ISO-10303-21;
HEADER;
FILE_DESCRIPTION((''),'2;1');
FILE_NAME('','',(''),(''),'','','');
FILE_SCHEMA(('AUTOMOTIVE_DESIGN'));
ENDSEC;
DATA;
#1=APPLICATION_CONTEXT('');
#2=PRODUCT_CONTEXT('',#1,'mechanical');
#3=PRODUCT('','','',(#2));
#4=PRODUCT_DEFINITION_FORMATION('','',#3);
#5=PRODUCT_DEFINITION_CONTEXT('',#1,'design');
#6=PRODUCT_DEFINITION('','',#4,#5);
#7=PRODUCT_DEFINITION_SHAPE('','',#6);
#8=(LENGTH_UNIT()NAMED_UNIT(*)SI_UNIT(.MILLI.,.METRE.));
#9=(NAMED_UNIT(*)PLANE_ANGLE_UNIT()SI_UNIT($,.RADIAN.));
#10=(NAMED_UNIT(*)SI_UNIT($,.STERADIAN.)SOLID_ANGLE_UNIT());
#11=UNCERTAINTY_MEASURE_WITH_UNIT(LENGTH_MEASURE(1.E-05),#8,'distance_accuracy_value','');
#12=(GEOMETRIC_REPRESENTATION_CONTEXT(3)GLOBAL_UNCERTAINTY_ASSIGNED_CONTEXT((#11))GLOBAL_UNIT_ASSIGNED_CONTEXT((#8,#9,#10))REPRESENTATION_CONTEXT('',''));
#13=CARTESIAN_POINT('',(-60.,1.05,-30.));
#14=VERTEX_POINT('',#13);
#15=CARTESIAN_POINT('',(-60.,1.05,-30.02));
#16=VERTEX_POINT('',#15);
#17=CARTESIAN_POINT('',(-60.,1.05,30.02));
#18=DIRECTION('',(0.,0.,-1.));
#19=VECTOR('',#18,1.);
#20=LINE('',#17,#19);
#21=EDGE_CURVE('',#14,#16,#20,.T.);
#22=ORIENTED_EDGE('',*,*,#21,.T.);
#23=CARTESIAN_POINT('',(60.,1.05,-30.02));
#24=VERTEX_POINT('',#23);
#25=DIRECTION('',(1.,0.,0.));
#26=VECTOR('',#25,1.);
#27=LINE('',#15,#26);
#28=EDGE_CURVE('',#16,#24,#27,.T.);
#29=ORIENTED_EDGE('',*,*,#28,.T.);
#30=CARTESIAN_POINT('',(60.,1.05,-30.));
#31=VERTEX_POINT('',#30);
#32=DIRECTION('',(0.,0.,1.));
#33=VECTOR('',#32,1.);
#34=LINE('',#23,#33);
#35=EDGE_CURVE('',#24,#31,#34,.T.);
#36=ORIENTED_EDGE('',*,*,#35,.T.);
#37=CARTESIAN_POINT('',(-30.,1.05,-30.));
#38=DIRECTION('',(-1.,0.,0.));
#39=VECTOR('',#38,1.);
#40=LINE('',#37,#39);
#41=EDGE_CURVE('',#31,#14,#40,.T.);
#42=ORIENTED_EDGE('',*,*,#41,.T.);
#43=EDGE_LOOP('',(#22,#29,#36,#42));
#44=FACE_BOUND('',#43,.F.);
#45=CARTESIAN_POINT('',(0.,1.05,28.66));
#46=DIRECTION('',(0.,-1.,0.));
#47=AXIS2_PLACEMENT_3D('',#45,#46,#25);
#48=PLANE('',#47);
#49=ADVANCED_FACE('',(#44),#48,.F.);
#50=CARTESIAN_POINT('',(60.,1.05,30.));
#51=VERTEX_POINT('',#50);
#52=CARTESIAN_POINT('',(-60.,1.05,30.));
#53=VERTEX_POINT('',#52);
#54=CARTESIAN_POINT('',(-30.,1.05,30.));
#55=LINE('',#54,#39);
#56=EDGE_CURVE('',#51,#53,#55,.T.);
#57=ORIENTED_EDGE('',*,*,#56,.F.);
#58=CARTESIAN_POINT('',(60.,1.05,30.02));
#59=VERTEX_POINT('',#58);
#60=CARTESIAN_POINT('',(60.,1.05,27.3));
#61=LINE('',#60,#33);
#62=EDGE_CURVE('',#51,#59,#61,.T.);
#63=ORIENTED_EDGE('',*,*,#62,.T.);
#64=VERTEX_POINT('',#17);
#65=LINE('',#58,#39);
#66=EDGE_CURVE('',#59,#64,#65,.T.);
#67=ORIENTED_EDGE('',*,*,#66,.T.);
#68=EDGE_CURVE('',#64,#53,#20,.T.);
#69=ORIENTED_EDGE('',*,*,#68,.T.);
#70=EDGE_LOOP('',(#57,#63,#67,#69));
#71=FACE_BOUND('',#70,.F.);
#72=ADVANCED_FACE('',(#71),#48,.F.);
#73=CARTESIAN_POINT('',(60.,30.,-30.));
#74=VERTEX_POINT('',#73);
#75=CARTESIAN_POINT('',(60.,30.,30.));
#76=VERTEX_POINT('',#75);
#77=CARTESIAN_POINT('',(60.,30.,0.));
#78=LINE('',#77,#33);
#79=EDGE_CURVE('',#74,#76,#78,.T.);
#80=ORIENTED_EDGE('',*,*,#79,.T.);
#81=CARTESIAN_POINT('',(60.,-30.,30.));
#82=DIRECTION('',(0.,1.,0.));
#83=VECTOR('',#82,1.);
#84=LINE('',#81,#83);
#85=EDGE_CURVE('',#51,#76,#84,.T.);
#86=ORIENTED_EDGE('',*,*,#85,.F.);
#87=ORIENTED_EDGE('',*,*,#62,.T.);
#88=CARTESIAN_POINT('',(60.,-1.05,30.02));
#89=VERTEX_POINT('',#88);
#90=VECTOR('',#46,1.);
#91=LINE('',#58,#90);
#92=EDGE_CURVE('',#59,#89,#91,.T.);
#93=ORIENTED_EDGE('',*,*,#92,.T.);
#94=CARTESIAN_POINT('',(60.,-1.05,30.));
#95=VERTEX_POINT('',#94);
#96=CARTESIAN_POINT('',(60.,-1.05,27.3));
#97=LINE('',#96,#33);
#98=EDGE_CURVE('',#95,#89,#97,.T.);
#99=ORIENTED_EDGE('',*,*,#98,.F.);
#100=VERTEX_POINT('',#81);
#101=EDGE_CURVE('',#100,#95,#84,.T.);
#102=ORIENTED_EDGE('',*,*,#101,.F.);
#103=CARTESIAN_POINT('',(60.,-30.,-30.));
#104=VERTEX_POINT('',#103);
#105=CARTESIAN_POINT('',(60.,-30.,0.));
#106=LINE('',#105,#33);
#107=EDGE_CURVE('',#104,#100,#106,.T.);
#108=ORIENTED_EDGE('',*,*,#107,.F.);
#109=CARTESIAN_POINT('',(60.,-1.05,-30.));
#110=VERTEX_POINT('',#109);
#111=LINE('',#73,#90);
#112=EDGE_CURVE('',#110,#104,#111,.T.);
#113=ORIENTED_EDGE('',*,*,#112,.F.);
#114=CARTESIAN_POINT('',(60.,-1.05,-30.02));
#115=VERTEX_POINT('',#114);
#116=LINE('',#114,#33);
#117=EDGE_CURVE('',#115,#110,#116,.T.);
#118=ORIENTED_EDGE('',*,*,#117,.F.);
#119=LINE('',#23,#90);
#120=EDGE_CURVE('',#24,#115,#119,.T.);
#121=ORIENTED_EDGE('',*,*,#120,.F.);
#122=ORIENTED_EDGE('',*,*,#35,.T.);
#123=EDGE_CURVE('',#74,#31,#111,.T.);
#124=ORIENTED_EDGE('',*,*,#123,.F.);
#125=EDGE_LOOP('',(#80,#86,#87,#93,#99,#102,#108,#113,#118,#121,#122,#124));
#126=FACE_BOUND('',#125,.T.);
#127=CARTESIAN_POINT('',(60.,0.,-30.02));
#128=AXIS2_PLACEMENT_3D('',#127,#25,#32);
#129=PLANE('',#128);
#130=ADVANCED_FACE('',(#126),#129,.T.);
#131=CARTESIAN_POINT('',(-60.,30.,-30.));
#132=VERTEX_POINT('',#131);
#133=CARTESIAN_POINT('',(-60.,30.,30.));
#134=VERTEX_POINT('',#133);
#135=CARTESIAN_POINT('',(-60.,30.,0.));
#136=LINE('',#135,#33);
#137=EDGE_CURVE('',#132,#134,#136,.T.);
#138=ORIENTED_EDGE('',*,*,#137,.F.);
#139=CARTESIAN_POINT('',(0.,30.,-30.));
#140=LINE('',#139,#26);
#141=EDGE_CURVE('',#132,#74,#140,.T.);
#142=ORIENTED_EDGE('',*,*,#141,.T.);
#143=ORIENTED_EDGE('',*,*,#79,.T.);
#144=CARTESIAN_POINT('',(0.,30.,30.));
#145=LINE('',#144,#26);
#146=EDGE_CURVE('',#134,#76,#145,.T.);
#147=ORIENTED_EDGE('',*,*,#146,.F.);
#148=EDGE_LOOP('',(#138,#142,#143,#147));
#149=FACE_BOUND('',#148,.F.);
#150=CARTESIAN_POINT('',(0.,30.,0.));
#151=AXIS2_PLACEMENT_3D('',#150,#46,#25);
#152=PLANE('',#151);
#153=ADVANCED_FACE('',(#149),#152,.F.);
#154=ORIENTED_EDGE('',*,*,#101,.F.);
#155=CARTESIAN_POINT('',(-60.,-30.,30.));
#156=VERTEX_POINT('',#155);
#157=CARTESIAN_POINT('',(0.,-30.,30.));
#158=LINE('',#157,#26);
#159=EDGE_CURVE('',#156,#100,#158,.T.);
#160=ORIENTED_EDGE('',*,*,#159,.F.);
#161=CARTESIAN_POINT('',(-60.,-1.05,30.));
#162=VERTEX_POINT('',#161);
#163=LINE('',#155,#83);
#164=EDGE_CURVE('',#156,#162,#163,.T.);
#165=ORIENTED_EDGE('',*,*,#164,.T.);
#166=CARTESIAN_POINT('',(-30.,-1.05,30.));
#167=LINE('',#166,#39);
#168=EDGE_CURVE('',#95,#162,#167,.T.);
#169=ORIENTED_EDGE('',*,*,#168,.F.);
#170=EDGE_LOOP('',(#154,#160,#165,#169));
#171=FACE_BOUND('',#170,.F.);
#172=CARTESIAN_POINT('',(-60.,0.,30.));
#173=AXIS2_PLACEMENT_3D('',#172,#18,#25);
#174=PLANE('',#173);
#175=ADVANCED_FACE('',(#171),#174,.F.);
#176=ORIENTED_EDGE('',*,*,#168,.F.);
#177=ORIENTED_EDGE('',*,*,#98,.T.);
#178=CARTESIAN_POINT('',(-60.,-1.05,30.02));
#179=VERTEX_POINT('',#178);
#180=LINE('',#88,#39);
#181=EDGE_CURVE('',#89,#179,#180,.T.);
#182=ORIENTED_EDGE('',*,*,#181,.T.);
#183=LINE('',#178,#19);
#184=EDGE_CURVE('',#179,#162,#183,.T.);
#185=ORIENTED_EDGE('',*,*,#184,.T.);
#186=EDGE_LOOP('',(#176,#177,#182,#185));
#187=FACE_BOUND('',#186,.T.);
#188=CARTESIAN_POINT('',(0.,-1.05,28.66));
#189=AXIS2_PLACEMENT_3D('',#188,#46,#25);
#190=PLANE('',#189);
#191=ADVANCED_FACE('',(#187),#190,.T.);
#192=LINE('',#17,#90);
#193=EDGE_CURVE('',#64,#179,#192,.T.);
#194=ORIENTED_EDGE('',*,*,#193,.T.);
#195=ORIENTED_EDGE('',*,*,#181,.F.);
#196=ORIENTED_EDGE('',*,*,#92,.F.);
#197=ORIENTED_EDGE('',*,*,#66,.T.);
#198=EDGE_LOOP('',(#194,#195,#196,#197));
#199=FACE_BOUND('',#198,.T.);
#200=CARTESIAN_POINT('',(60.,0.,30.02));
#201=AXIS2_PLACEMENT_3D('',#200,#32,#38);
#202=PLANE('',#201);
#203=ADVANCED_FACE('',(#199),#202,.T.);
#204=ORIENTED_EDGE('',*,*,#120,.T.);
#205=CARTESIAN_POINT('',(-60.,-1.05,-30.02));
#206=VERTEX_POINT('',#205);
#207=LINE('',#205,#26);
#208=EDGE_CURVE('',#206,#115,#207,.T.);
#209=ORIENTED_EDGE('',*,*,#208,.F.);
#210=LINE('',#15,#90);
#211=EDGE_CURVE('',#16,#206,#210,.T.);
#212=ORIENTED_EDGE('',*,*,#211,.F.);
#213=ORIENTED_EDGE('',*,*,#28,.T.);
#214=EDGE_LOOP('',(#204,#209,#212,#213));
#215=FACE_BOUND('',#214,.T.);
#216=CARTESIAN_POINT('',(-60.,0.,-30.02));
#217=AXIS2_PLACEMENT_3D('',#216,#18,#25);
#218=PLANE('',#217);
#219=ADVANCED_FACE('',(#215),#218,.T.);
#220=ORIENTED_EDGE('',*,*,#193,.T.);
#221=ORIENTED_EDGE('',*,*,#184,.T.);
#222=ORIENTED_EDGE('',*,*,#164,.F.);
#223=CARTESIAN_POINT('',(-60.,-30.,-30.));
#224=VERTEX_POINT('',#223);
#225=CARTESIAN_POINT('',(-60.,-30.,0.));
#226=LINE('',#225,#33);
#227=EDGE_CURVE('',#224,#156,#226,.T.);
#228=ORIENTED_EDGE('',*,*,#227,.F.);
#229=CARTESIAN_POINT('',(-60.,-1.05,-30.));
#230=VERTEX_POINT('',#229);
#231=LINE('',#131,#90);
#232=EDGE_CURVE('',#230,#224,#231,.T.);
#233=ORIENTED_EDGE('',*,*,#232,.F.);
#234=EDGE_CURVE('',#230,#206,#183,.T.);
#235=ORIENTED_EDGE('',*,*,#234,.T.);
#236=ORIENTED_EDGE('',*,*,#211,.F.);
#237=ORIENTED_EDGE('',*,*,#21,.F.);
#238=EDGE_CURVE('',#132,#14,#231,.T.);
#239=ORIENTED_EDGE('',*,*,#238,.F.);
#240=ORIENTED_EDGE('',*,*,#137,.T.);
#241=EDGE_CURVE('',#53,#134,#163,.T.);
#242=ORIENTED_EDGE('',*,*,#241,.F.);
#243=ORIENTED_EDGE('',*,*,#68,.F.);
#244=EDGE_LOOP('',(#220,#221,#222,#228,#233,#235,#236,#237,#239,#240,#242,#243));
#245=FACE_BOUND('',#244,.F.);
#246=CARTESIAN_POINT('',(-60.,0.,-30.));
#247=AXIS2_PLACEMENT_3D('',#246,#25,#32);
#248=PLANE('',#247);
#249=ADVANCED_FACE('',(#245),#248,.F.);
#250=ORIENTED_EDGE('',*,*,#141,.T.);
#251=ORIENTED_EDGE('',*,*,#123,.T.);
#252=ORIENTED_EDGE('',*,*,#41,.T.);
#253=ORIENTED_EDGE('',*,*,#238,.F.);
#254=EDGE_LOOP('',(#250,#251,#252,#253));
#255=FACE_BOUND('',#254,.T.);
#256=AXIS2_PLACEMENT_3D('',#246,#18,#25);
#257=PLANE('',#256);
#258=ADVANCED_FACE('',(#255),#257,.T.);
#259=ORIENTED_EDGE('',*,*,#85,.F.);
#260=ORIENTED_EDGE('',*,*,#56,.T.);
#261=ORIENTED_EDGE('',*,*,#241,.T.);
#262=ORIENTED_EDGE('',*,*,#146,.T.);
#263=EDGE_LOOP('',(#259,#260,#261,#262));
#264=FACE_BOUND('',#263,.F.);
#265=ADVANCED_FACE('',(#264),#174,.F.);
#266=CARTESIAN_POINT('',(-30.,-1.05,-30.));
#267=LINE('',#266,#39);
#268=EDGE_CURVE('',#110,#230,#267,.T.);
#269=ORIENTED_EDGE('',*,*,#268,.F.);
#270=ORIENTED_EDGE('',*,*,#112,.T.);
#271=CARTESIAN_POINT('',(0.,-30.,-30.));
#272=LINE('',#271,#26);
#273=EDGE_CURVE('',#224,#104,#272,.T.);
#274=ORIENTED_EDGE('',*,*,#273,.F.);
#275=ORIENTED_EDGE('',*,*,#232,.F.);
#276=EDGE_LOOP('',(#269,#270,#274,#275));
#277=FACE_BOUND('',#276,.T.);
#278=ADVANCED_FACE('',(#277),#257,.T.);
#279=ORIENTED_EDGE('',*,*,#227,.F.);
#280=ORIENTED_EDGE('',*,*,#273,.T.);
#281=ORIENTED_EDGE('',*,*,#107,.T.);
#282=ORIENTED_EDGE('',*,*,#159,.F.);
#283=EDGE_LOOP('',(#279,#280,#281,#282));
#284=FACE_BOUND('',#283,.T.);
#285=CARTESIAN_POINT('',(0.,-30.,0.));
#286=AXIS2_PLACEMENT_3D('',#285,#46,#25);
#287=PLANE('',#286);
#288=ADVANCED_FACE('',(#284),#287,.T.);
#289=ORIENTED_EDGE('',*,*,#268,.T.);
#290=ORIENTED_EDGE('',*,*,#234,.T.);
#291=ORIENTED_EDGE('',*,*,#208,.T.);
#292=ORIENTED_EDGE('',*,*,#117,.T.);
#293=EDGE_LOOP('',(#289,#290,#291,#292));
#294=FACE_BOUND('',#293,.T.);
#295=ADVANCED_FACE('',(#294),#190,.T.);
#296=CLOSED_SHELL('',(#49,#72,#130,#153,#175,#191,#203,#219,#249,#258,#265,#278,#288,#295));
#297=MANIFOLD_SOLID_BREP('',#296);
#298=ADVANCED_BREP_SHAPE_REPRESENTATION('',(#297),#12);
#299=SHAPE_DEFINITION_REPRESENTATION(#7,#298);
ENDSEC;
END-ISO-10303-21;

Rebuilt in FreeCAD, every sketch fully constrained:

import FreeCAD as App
import Part
import Sketcher
Q = App.Units.Quantity

doc = App.newDocument("Part")
body = doc.addObject("PartDesign::Body", "Body")

# Sketch on XZ plane
sketch1 = body.newObject("Sketcher::SketchObject", "Sketch")
sketch1.AttachmentSupport = (doc.getObject("XZ_Plane"), [""])
sketch1.MapMode = "FlatFace"
sketch1.addGeometry([
    Part.LineSegment(App.Vector(-60, 30, 0), App.Vector(-60, -30, 0)),
    Part.LineSegment(App.Vector(-60, -30, 0), App.Vector(60, -30, 0)),
    Part.LineSegment(App.Vector(60, -30, 0), App.Vector(60, 30, 0)),
    Part.LineSegment(App.Vector(60, 30, 0), App.Vector(-60, 30, 0)),
], False)
sketch1.addConstraint([
    Sketcher.Constraint("Coincident", 0, 2, 1, 1),
    Sketcher.Constraint("Coincident", 1, 2, 2, 1),
    Sketcher.Constraint("Coincident", 2, 2, 3, 1),
    Sketcher.Constraint("Coincident", 3, 2, 0, 1),
    Sketcher.Constraint("Vertical", 0),
    Sketcher.Constraint("Horizontal", 1),
    Sketcher.Constraint("Vertical", 2),
    Sketcher.Constraint("Horizontal", 3),
    Sketcher.Constraint("Symmetric", 0, 2, 2, 2, -1, 1),
    Sketcher.Constraint("DistanceX", 1, 1, 1, 2, Q("120 mm")),
    Sketcher.Constraint("DistanceY", 0, 2, 0, 1, Q("60 mm")),
])
pad1 = body.newObject("PartDesign::Pad", "Pad")
pad1.Profile = sketch1
pad1.Length = 60
pad1.Midplane = True

# Sketch on XZ plane
sketch2 = body.newObject("Sketcher::SketchObject", "Sketch001")
sketch2.AttachmentSupport = (doc.getObject("XZ_Plane"), [""])
sketch2.MapMode = "FlatFace"
sketch2.addGeometry([
    Part.LineSegment(App.Vector(60, 27.3, 0), App.Vector(60, 30.02, 0)),  # 0
    Part.LineSegment(App.Vector(60, 30.02, 0), App.Vector(-60, 30.02, 0)),  # 1
    Part.LineSegment(App.Vector(-60, 30.02, 0), App.Vector(-60, -30.02, 0)),  # 2
    Part.LineSegment(App.Vector(-60, -30.02, 0), App.Vector(60, -30.02, 0)),  # 3
    Part.LineSegment(App.Vector(60, -30.02, 0), App.Vector(60, -27.3, 0)),  # 4
    Part.LineSegment(App.Vector(60, -27.3, 0), App.Vector(59.72, -27.3, 0)),  # 5
    Part.LineSegment(App.Vector(59.72, -27.3, 0), App.Vector(59.72, 27.3, 0)),  # 6
    Part.LineSegment(App.Vector(59.72, 27.3, 0), App.Vector(60, 27.3, 0)),  # 7
    Part.LineSegment(App.Vector(-55.7, 27.3, 0), App.Vector(55.39, 27.3, 0)),  # 8
    Part.LineSegment(App.Vector(55.39, 27.3, 0), App.Vector(55.39, -27.3, 0)),  # 9
    Part.LineSegment(App.Vector(55.39, -27.3, 0), App.Vector(-55.7, -27.3, 0)),  # 10
    Part.LineSegment(App.Vector(-55.7, -27.3, 0), App.Vector(-55.7, 27.3, 0)),  # 11
], False)
sketch2.addConstraint([
    Sketcher.Constraint("Coincident", 0, 2, 1, 1),
    Sketcher.Constraint("Coincident", 1, 2, 2, 1),
    Sketcher.Constraint("Coincident", 2, 2, 3, 1),
    Sketcher.Constraint("Coincident", 3, 2, 4, 1),
    Sketcher.Constraint("Coincident", 4, 2, 5, 1),
    Sketcher.Constraint("Coincident", 5, 2, 6, 1),
    Sketcher.Constraint("Coincident", 6, 2, 7, 1),
    Sketcher.Constraint("Coincident", 7, 2, 0, 1),
    Sketcher.Constraint("Coincident", 8, 2, 9, 1),
    Sketcher.Constraint("Coincident", 9, 2, 10, 1),
    Sketcher.Constraint("Coincident", 10, 2, 11, 1),
    Sketcher.Constraint("Coincident", 11, 2, 8, 1),
    Sketcher.Constraint("Vertical", 0),
    Sketcher.Constraint("Horizontal", 1),
    Sketcher.Constraint("Vertical", 2),
    Sketcher.Constraint("Horizontal", 3),
    Sketcher.Constraint("Vertical", 4),
    Sketcher.Constraint("Horizontal", 5),
    Sketcher.Constraint("Vertical", 6),
    Sketcher.Constraint("Horizontal", 7),
    Sketcher.Constraint("Horizontal", 8),
    Sketcher.Constraint("Vertical", 9),
    Sketcher.Constraint("Horizontal", 10),
    Sketcher.Constraint("Vertical", 11),
    Sketcher.Constraint("Symmetric", 0, 2, 2, 2, -1, 1),
    Sketcher.Constraint("Symmetric", 4, 2, 7, 2, -1),
    Sketcher.Constraint("Horizontal", 7, 2, 8, 2),
    Sketcher.Constraint("Horizontal", 5, 2, 9, 2),
    Sketcher.Constraint("DistanceX", 1, 2, 1, 1, Q("120 mm")),
    Sketcher.Constraint("DistanceY", 6, 1, 6, 2, Q("54.6 mm")),
    Sketcher.Constraint("DistanceY", 0, 1, 0, 2, Q("2.72 mm")),
    Sketcher.Constraint("DistanceX", 5, 2, 5, 1, Q("0.279958 mm")),
    Sketcher.Constraint("DistanceX", 8, 1, 8, 2, Q("111.085474 mm")),
    Sketcher.Constraint("DistanceX", -1, 1, 8, 2, Q("55.388022 mm")),
])
pad2 = body.newObject("PartDesign::Pad", "Pad001")
pad2.Profile = sketch2
pad2.Length = 2.1
pad2.Midplane = True

doc.recompute()
